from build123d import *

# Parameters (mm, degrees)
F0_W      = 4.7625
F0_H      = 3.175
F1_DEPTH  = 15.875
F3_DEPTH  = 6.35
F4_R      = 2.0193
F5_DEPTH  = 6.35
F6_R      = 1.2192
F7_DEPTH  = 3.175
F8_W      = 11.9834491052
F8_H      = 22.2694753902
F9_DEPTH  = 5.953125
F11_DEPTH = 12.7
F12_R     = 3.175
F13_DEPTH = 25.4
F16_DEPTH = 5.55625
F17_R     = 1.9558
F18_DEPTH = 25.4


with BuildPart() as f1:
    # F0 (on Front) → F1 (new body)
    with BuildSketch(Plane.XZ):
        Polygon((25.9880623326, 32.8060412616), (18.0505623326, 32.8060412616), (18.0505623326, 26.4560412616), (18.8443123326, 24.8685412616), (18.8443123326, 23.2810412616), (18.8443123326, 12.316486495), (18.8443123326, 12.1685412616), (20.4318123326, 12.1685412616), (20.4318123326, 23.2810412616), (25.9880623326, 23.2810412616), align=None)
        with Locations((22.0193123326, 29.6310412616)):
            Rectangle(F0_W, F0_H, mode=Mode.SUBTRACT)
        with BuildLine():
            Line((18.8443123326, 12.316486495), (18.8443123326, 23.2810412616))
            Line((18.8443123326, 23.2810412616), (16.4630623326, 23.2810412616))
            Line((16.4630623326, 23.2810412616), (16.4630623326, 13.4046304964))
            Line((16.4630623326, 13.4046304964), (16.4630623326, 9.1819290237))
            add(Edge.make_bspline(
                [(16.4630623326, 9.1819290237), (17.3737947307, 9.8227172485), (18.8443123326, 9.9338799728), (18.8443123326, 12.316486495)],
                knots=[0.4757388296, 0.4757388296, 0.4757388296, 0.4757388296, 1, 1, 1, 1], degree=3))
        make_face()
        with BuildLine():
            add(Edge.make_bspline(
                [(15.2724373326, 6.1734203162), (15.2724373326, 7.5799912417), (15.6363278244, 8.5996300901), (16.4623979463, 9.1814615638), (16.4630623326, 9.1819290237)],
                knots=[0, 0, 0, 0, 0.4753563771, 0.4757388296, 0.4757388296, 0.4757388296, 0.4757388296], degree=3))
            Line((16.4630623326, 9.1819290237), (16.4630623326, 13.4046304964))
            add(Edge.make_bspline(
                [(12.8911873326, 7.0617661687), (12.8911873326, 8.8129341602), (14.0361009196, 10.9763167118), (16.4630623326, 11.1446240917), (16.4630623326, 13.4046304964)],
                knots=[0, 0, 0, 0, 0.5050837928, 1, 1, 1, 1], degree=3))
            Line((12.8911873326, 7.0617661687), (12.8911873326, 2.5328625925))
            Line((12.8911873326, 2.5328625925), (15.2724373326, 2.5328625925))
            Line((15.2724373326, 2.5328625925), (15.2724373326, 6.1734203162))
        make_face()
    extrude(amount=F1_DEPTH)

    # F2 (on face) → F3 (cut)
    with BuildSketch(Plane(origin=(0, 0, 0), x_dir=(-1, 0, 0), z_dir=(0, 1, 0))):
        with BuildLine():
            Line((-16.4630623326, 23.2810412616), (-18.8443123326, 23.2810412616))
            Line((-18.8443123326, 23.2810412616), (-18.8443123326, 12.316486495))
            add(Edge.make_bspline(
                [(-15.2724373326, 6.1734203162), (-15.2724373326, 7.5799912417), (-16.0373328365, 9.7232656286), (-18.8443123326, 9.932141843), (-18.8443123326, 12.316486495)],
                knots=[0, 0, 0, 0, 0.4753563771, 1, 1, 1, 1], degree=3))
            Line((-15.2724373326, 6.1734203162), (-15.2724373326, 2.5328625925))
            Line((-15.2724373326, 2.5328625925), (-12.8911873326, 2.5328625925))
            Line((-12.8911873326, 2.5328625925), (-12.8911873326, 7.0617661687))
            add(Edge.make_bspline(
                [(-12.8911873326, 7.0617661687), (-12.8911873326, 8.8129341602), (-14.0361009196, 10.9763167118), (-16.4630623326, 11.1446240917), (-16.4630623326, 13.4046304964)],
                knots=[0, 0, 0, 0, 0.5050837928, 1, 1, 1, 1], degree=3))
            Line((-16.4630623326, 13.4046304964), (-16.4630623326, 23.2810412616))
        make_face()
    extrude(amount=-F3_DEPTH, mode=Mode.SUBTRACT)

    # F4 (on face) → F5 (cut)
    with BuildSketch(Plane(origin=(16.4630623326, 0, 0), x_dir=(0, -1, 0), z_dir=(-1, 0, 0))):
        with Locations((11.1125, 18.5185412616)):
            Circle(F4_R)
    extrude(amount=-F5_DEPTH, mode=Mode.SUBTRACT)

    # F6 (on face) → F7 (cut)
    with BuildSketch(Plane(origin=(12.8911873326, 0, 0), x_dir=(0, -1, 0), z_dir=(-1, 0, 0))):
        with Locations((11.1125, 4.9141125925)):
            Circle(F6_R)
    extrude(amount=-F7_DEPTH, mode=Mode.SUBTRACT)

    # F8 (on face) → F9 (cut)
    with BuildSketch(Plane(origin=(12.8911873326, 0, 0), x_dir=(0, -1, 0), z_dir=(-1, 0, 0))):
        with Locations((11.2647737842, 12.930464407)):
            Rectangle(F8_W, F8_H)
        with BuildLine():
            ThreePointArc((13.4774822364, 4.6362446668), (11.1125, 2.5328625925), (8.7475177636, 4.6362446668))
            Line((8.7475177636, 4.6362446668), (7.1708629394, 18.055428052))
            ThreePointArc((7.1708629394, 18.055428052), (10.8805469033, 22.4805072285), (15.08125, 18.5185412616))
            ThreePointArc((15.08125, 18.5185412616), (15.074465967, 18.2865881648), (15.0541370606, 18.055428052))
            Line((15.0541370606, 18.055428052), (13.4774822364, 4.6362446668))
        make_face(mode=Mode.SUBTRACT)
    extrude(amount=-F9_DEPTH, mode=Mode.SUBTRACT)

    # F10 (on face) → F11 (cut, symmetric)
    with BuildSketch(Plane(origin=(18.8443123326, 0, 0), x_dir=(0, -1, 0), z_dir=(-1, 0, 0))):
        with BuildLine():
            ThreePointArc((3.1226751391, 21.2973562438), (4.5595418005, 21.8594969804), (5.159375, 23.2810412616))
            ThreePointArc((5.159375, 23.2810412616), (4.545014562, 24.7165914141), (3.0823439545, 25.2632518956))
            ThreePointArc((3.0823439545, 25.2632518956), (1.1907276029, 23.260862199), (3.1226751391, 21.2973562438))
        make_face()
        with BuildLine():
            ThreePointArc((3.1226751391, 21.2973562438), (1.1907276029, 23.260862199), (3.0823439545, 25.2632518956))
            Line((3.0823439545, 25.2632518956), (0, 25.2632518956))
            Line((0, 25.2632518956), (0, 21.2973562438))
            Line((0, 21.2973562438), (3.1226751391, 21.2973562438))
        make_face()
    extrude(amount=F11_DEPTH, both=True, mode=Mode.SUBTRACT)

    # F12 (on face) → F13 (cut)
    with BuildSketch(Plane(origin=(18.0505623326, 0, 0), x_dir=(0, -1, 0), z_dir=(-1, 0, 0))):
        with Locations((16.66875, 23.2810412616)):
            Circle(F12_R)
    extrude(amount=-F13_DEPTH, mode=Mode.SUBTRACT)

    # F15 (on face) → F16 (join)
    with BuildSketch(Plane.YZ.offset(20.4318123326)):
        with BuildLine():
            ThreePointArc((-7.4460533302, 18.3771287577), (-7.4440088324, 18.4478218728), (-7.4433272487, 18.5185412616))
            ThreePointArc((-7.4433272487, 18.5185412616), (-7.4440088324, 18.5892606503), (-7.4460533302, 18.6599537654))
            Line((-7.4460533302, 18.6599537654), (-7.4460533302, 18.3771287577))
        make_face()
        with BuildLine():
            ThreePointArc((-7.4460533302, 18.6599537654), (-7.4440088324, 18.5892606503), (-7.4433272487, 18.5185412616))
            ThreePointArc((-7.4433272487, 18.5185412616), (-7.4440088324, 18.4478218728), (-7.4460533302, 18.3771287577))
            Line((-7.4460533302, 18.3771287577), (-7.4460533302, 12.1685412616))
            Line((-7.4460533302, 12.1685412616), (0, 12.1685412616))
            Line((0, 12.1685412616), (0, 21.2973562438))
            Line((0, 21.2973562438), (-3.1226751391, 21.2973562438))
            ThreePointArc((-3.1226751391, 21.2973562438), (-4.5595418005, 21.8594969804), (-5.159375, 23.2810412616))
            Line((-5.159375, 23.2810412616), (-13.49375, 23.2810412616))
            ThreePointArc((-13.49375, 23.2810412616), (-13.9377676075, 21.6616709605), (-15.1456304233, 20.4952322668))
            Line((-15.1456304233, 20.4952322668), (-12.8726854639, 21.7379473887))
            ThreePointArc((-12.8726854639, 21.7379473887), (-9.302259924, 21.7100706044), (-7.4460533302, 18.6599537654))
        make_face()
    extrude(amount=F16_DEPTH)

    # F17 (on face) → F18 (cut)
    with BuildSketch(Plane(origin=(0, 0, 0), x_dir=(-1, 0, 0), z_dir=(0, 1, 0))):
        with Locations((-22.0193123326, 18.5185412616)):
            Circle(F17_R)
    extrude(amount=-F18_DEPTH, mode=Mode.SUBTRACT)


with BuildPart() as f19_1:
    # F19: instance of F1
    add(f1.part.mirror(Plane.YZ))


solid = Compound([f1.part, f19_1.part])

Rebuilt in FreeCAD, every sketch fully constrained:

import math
import FreeCAD as App
import Part
import Sketcher

V = App.Vector
Q = App.Units.Quantity

doc = App.newDocument("Part")
body = doc.addObject("PartDesign::Body", "Body")

# Sketch on XZ plane
sketch1 = body.newObject("Sketcher::SketchObject", "Sketch")
sketch1.AttachmentSupport = (doc.getObject("XZ_Plane"), [""])
sketch1.MapMode = "FlatFace"
sketch1.addGeometry([
    Part.LineSegment(V(25.988062, 32.806041, 0), V(18.050562, 32.806041, 0)),  # 0
    Part.LineSegment(V(18.050562, 32.806041, 0), V(18.050562, 26.456041, 0)),  # 1
    Part.LineSegment(V(18.050562, 26.456041, 0), V(18.844312, 24.868541, 0)),  # 2
    Part.LineSegment(V(18.844312, 24.868541, 0), V(18.844312, 23.281041, 0)),  # 3
    Part.LineSegment(V(18.844312, 23.281041, 0), V(16.463062, 23.281041, 0)),  # 4
    Part.LineSegment(V(16.463062, 23.281041, 0), V(16.463062, 13.40463, 0)),  # 5
    Part.BSplineCurve([V(12.891187, 7.061766, 0), V(12.891187, 8.812934, 0), V(14.036101, 10.976317, 0), V(16.463062, 11.144624, 0), V(16.463062, 13.40463, 0)], [4, 1, 4], [0, 0.505083793, 1], False, 3, [1, 1, 1, 1, 1], False),  # 6
    Part.LineSegment(V(12.891187, 7.061766, 0), V(12.891187, 2.532863, 0)),  # 7
    Part.LineSegment(V(12.891187, 2.532863, 0), V(15.272437, 2.532863, 0)),  # 8
    Part.LineSegment(V(15.272437, 2.532863, 0), V(15.272437, 6.17342, 0)),  # 9
    Part.BSplineCurve([V(15.272437, 6.17342, 0), V(15.272437, 7.579991, 0), V(15.636328, 8.59963, 0), V(16.462398, 9.181462, 0), V(16.463062, 9.181929, 0)], [4, 1, 4], [0, 0.475356377, 0.47573883], False, 3, [1, 1, 1, 1, 1], False),  # 10
    Part.BSplineCurve([V(16.463062, 9.181929, 0), V(17.373795, 9.822717, 0), V(18.844312, 9.93388, 0), V(18.844312, 12.316486, 0)], [4, 4], [0.47573883, 1], False, 3, [1, 1, 1, 1], False),  # 11
    Part.LineSegment(V(18.844312, 12.316486, 0), V(18.844312, 12.168541, 0)),  # 12
    Part.LineSegment(V(18.844312, 12.168541, 0), V(20.431812, 12.168541, 0)),  # 13
    Part.LineSegment(V(20.431812, 12.168541, 0), V(20.431812, 23.281041, 0)),  # 14
    Part.LineSegment(V(20.431812, 23.281041, 0), V(25.988062, 23.281041, 0)),  # 15
    Part.LineSegment(V(25.988062, 23.281041, 0), V(25.988062, 32.806041, 0)),  # 16
    Part.LineSegment(V(24.400562, 28.043541, 0), V(19.638062, 28.043541, 0)),  # 17
    Part.LineSegment(V(19.638062, 28.043541, 0), V(19.638062, 31.218541, 0)),  # 18
    Part.LineSegment(V(19.638062, 31.218541, 0), V(24.400562, 31.218541, 0)),  # 19
    Part.LineSegment(V(24.400562, 31.218541, 0), V(24.400562, 28.043541, 0)),  # 20
], False)
sketch1.addConstraint([
    Sketcher.Constraint("Block", 6),
    Sketcher.Constraint("Block", 10),
    Sketcher.Constraint("Block", 11),
    Sketcher.Constraint("Coincident", 0, 2, 1, 1),
    Sketcher.Constraint("Coincident", 1, 2, 2, 1),
    Sketcher.Constraint("Coincident", 2, 2, 3, 1),
    Sketcher.Constraint("Coincident", 3, 2, 4, 1),
    Sketcher.Constraint("Coincident", 4, 2, 5, 1),
    Sketcher.Constraint("Coincident", 5, 2, 6, 2),
    Sketcher.Constraint("Coincident", 6, 1, 7, 1),
    Sketcher.Constraint("Coincident", 7, 2, 8, 1),
    Sketcher.Constraint("Coincident", 8, 2, 9, 1),
    Sketcher.Constraint("Coincident", 9, 2, 10, 1),
    Sketcher.Constraint("Coincident", 11, 2, 12, 1),
    Sketcher.Constraint("Coincident", 12, 2, 13, 1),
    Sketcher.Constraint("Coincident", 13, 2, 14, 1),
    Sketcher.Constraint("Coincident", 14, 2, 15, 1),
    Sketcher.Constraint("Coincident", 15, 2, 16, 1),
    Sketcher.Constraint("Coincident", 16, 2, 0, 1),
    Sketcher.Constraint("Coincident", 17, 2, 18, 1),
    Sketcher.Constraint("Coincident", 18, 2, 19, 1),
    Sketcher.Constraint("Coincident", 19, 2, 20, 1),
    Sketcher.Constraint("Coincident", 20, 2, 17, 1),
    Sketcher.Constraint("Horizontal", 0),
    Sketcher.Constraint("Vertical", 1),
    Sketcher.Constraint("Vertical", 3),
    Sketcher.Constraint("Horizontal", 4),
    Sketcher.Constraint("Vertical", 5),
    Sketcher.Constraint("Vertical", 7),
    Sketcher.Constraint("Horizontal", 8),
    Sketcher.Constraint("Vertical", 9),
    Sketcher.Constraint("Vertical", 12),
    Sketcher.Constraint("Horizontal", 13),
    Sketcher.Constraint("Vertical", 14),
    Sketcher.Constraint("Horizontal", 15),
    Sketcher.Constraint("Vertical", 16),
    Sketcher.Constraint("Horizontal", 17),
    Sketcher.Constraint("Vertical", 18),
    Sketcher.Constraint("Horizontal", 19),
    Sketcher.Constraint("Vertical", 20),
    Sketcher.Constraint("Horizontal", 4, 2, 14, 2),
    Sketcher.Constraint("Vertical", 3, 2, 12, 2),
    Sketcher.Constraint("Equal", 13, 3),
    Sketcher.Constraint("DistanceY", 1, 2, 1, 1, Q("0.25 in")),
    Sketcher.Constraint("DistanceX", 0, 2, 0, 1, Q("0.3125 in")),
    Sketcher.Constraint("DistanceX", 13, 1, 13, 2, Q("0.0625 in")),
    Sketcher.Constraint("DistanceX", 15, 1, 15, 2, Q("0.21875 in")),
    Sketcher.Constraint("DistanceX", 17, 2, 17, 1, Q("0.1875 in")),
    Sketcher.Constraint("DistanceY", 14, 1, 14, 2, Q("0.4375 in")),
    Sketcher.Constraint("DistanceY", 16, 1, 16, 2, Q("0.375 in")),
    Sketcher.Constraint("DistanceY", 18, 1, 18, 2, Q("0.125 in")),
    Sketcher.Constraint("DistanceY", 2, 2, 18, 2, Q("0.25 in")),
    Sketcher.Constraint("DistanceX", 18, 2, 16, 2, Q("0.25 in")),
    Sketcher.Constraint("DistanceY", 5, 2, 5, 1, Q("9.876411 mm")),
    Sketcher.Constraint("DistanceY", 7, 2, 7, 1, Q("4.528904 mm")),
])
pad1 = body.newObject("PartDesign::Pad", "Pad")
pad1.Profile = sketch1
pad1.Length = Q("0.625 in")

# Sketch on XZ plane
sketch2 = body.newObject("Sketcher::SketchObject", "Sketch001")
sketch2.AttachmentSupport = (doc.getObject("XZ_Plane"), [""])
sketch2.MapMode = "FlatFace"
sketch2.addGeometry([
    Part.LineSegment(V(16.463062, 23.281041, 0), V(18.844312, 23.281041, 0)),  # 0
    Part.LineSegment(V(18.844312, 23.281041, 0), V(18.844312, 12.316486, 0)),  # 1
    Part.BSplineCurve([V(15.272437, 6.17342, 0), V(15.272437, 7.579991, 0), V(16.037333, 9.723266, 0), V(18.844312, 9.932142, 0), V(18.844312, 12.316486, 0)], [4, 1, 4], [0, 0.475356377, 1], False, 3, [1, 1, 1, 1, 1], False),  # 2
    Part.LineSegment(V(15.272437, 6.17342, 0), V(15.272437, 2.532863, 0)),  # 3
    Part.LineSegment(V(15.272437, 2.532863, 0), V(12.891187, 2.532863, 0)),  # 4
    Part.LineSegment(V(12.891187, 2.532863, 0), V(12.891187, 7.061766, 0)),  # 5
    Part.BSplineCurve([V(12.891187, 7.061766, 0), V(12.891187, 8.812934, 0), V(14.036101, 10.976317, 0), V(16.463062, 11.144624, 0), V(16.463062, 13.40463, 0)], [4, 1, 4], [0, 0.505083793, 1], False, 3, [1, 1, 1, 1, 1], False),  # 6
    Part.LineSegment(V(16.463062, 13.40463, 0), V(16.463062, 23.281041, 0)),  # 7
], False)
sketch2.addConstraint([
    Sketcher.Constraint("Block", 2),
    Sketcher.Constraint("Block", 6),
    Sketcher.Constraint("Coincident", 0, 2, 1, 1),
    Sketcher.Constraint("Coincident", 1, 2, 2, 2),
    Sketcher.Constraint("Coincident", 2, 1, 3, 1),
    Sketcher.Constraint("Coincident", 3, 2, 4, 1),
    Sketcher.Constraint("Coincident", 4, 2, 5, 1),
    Sketcher.Constraint("Coincident", 5, 2, 6, 1),
    Sketcher.Constraint("Coincident", 6, 2, 7, 1),
    Sketcher.Constraint("Coincident", 7, 2, 0, 1),
    Sketcher.Constraint("Horizontal", 0),
    Sketcher.Constraint("Vertical", 1),
    Sketcher.Constraint("Vertical", 3),
    Sketcher.Constraint("Horizontal", 4),
    Sketcher.Constraint("Vertical", 5),
    Sketcher.Constraint("Vertical", 7),
    Sketcher.Constraint("DistanceY", 7, 1, 7, 2, Q("9.876411 mm")),
    Sketcher.Constraint("DistanceY", 3, 2, 3, 1, Q("3.640558 mm")),
])
pocket1 = body.newObject("PartDesign::Pocket", "Pocket")
pocket1.Profile = sketch2
pocket1.Length = Q("0.25 in")
pocket1.Reversed = True

# Sketch on YZ plane
sketch3 = body.newObject("Sketcher::SketchObject", "Sketch002")
sketch3.AttachmentSupport = (doc.getObject("YZ_Plane"), [""])
sketch3.MapMode = "FlatFace"
sketch3.AttachmentOffset = App.Placement(V(0, 0, 16.463062), App.Rotation())
sketch3.addGeometry(Part.Circle(V(-11.1, 18.5, 0), V(0, 0, 1), 2), False)
sketch3.addConstraint([
    Sketcher.Constraint("Diameter", 0, Q("0.159 in")),
    Sketcher.Constraint("DistanceX", 0, 3, -1, 1, Q("0.4375 in")),
    Sketcher.Constraint("DistanceY", -1, 1, 0, 3, Q("18.518541 mm")),
])
pocket2 = body.newObject("PartDesign::Pocket", "Pocket001")
pocket2.Profile = sketch3
pocket2.Length = Q("0.25 in")
pocket2.Reversed = True

# Sketch on YZ plane
sketch4 = body.newObject("Sketcher::SketchObject", "Sketch003")
sketch4.AttachmentSupport = (doc.getObject("YZ_Plane"), [""])
sketch4.MapMode = "FlatFace"
sketch4.AttachmentOffset = App.Placement(V(0, 0, 12.891187), App.Rotation())
sketch4.addGeometry(Part.Circle(V(-11.1, 4.9, 0), V(0, 0, 1), 1.2), False)
sketch4.addConstraint([
    Sketcher.Constraint("Diameter", 0, Q("0.096 in")),
    Sketcher.Constraint("DistanceX", 0, 3, -1, 1, Q("0.4375 in")),
    Sketcher.Constraint("DistanceY", -1, 1, 0, 3, Q("4.914113 mm")),
])
pocket3 = body.newObject("PartDesign::Pocket", "Pocket002")
pocket3.Profile = sketch4
pocket3.Length = Q("0.125 in")
pocket3.Reversed = True

# Sketch on YZ plane
sketch5 = body.newObject("Sketcher::SketchObject", "Sketch004")
sketch5.AttachmentSupport = (doc.getObject("YZ_Plane"), [""])
sketch5.MapMode = "FlatFace"
sketch5.AttachmentOffset = App.Placement(V(0, 0, 12.891187), App.Rotation())
sketch5.addGeometry([
    Part.LineSegment(V(-5.27, 24.07, 0), V(-5.27, 1.8, 0)),  # 0
    Part.LineSegment(V(-5.27, 1.8, 0), V(-17.26, 1.8, 0)),  # 1
    Part.LineSegment(V(-17.26, 1.8, 0), V(-17.26, 24.07, 0)),  # 2
    Part.LineSegment(V(-17.26, 24.07, 0), V(-5.27, 24.07, 0)),  # 3
    Part.LineSegment(V(-15.05, 18.06, 0), V(-13.48, 4.64, 0)),  # 4
    Part.ArcOfCircle(Part.Circle(V(-11.11, 4.91, 0), V(0, 0, 1), 2.38), math.radians(-173), math.radians(-7)),  # 5
    Part.LineSegment(V(-8.75, 4.64, 0), V(-7.17, 18.06, 0)),  # 6
    Part.ArcOfCircle(Part.Circle(V(-11.11, 18.52, 0), V(0, 0, 1), 3.97), math.radians(-7), math.radians(180)),  # 7
    Part.ArcOfCircle(Part.Circle(V(-11.11, 18.52, 0), V(0, 0, 1), 3.97), math.radians(180), math.radians(186.7)),  # 8
], False)
sketch5.addConstraint([
    Sketcher.Constraint("Coincident", 0, 2, 1, 1),
    Sketcher.Constraint("Coincident", 1, 2, 2, 1),
    Sketcher.Constraint("Coincident", 2, 2, 3, 1),
    Sketcher.Constraint("Coincident", 3, 2, 0, 1),
    Sketcher.Constraint("Tangent", 4, 2, 5, 1),
    Sketcher.Constraint("Tangent", 5, 2, 6, 1),
    Sketcher.Constraint("Tangent", 6, 2, 7, 1),
    Sketcher.Constraint("Tangent", 7, 2, 8, 1),
    Sketcher.Constraint("Tangent", 8, 2, 4, 1),
    Sketcher.Constraint("Vertical", 0),
    Sketcher.Constraint("Horizontal", 1),
    Sketcher.Constraint("Vertical", 2),
    Sketcher.Constraint("Horizontal", 3),
    Sketcher.Constraint("Equal", 7, 8),
    Sketcher.Constraint("Horizontal", 4, 2, 5, 2),
    Sketcher.Constraint("Horizontal", 8, 3, 7, 2),
    Sketcher.Constraint("Radius", 5, Q("0.09375 in")),
    Sketcher.Constraint("Radius", 7, Q("0.15625 in")),
    Sketcher.Constraint("DistanceX", 5, 3, -1, 1, Q("0.4375 in")),
    Sketcher.Constraint("DistanceX", 1, 2, 1, 1, Q("11.983449 mm")),
    Sketcher.Constraint("DistanceX", 1, 2, -1, 1, Q("17.256498 mm")),
    Sketcher.Constraint("Distance", 4, Q("13.511489 mm")),
    Sketcher.Constraint("DistanceY", 0, 2, 0, 1, Q("22.269475 mm")),
    Sketcher.Constraint("DistanceY", -1, 1, 7, 3, Q("18.518541 mm")),
    Sketcher.Constraint("DistanceY", 8, 3, 2, 2, Q("5.546661 mm")),
])
pocket4 = body.newObject("PartDesign::Pocket", "Pocket003")
pocket4.Profile = sketch5
pocket4.Length = Q("0.234375 in")
pocket4.Reversed = True

# Sketch on YZ plane
sketch6 = body.newObject("Sketcher::SketchObject", "Sketch005")
sketch6.AttachmentSupport = (doc.getObject("YZ_Plane"), [""])
sketch6.MapMode = "FlatFace"
sketch6.AttachmentOffset = App.Placement(V(0, 0, 18.844312), App.Rotation())
sketch6.addGeometry([
    Part.ArcOfCircle(Part.Circle(V(-3.2, 23.3, 0), V(0, 0, 1), 2), math.radians(180), math.radians(272)),  # 0
    Part.ArcOfCircle(Part.Circle(V(-3.2, 23.3, 0), V(0, 0, 1), 2), math.radians(87), math.radians(180)),  # 1
    Part.LineSegment(V(-3.1, 25.3, 0), V(0, 25.3, 0)),  # 2
    Part.LineSegment(V(0, 25.3, 0), V(0, 21.3, 0)),  # 3
    Part.LineSegment(V(0, 21.3, 0), V(-3.1, 21.3, 0)),  # 4
], False)
sketch6.addConstraint([
    Sketcher.Constraint("Tangent", 0, 1, 1, 2),
    Sketcher.Constraint("Coincident", 1, 1, 2, 1),
    Sketcher.Constraint("Coincident", 2, 2, 3, 1),
    Sketcher.Constraint("Coincident", 3, 2, 4, 1),
    Sketcher.Constraint("Coincident", 4, 2, 0, 2),
    Sketcher.Constraint("Horizontal", 2),
    Sketcher.Constraint("Vertical", 3),
    Sketcher.Constraint("Horizontal", 4),
    Sketcher.Constraint("Equal", 0, 1),
    Sketcher.Constraint("PointOnObject", 2, 2, -2),
    Sketcher.Constraint("Horizontal", 1, 3, 0, 1),
    Sketcher.Constraint("Radius", 0, Q("0.078125 in")),
    Sketcher.Constraint("DistanceX", 0, 3, -1, 1, Q("0.125 in")),
    Sketcher.Constraint("DistanceX", 0, 1, 4, 2, Q("2.0367 mm")),
    Sketcher.Constraint("DistanceX", 2, 1, 2, 2, Q("3.082344 mm")),
    Sketcher.Constraint("DistanceY", -1, 1, 0, 3, Q("23.281041 mm")),
])
pocket5 = body.newObject("PartDesign::Pocket", "Pocket004")
pocket5.Profile = sketch6
pocket5.Length = Q("1 in")
pocket5.Midplane = True

# Sketch on YZ plane
sketch7 = body.newObject("Sketcher::SketchObject", "Sketch006")
sketch7.AttachmentSupport = (doc.getObject("YZ_Plane"), [""])
sketch7.MapMode = "FlatFace"
sketch7.AttachmentOffset = App.Placement(V(0, 0, 18.050562), App.Rotation())
sketch7.addGeometry(Part.Circle(V(-16.7, 23.3, 0), V(0, 0, 1), 3.2), False)
sketch7.addConstraint([
    Sketcher.Constraint("Diameter", 0, Q("0.25 in")),
    Sketcher.Constraint("DistanceX", 0, 3, -1, 1, Q("0.65625 in")),
    Sketcher.Constraint("DistanceY", -1, 1, 0, 3, Q("23.281041 mm")),
])
pocket6 = body.newObject("PartDesign::Pocket", "Pocket005")
pocket6.Profile = sketch7
pocket6.Length = Q("1 in")
pocket6.Reversed = True

# Sketch on YZ plane
sketch8 = body.newObject("Sketcher::SketchObject", "Sketch007")
sketch8.AttachmentSupport = (doc.getObject("YZ_Plane"), [""])
sketch8.MapMode = "FlatFace"
sketch8.AttachmentOffset = App.Placement(V(0, 0, 20.431812), App.Rotation())
sketch8.addGeometry([
    Part.LineSegment(V(-7.4, 18.7, 0), V(-7.4, 12.2, 0)),  # 0
    Part.LineSegment(V(-7.4, 12.2, 0), V(0, 12.2, 0)),  # 1
    Part.LineSegment(V(0, 12.2, 0), V(0, 21.3, 0)),  # 2
    Part.LineSegment(V(0, 21.3, 0), V(-3.1, 21.3, 0)),  # 3
    Part.ArcOfCircle(Part.Circle(V(-3.2, 23.3, 0), V(0, 0, 1), 2), math.radians(180), math.radians(272)),  # 4
    Part.LineSegment(V(-5.2, 23.3, 0), V(-13.5, 23.3, 0)),  # 5
    Part.ArcOfCircle(Part.Circle(V(-16.7, 23.3, 0), V(0, 0, 1), 3.2), math.radians(-61), math.radians(0)),  # 6
    Part.LineSegment(V(-15.1, 20.5, 0), V(-12.9, 21.7, 0)),  # 7
    Part.ArcOfCircle(Part.Circle(V(-11.1, 18.5, 0), V(0, 0, 1), 3.7), math.radians(2), math.radians(119)),  # 8
], False)
sketch8.addConstraint([
    Sketcher.Constraint("Coincident", 0, 2, 1, 1),
    Sketcher.Constraint("Coincident", 1, 2, 2, 1),
    Sketcher.Constraint("Coincident", 2, 2, 3, 1),
    Sketcher.Constraint("Coincident", 3, 2, 4, 2),
    Sketcher.Constraint("Coincident", 4, 1, 5, 1),
    Sketcher.Constraint("Coincident", 5, 2, 6, 2),
    Sketcher.Constraint("Tangent", 6, 1, 7, 1),
    Sketcher.Constraint("Tangent", 7, 2, 8, 2),
    Sketcher.Constraint("Coincident", 8, 1, 0, 1),
    Sketcher.Constraint("Vertical", 0),
    Sketcher.Constraint("Horizontal", 1),
    Sketcher.Constraint("Vertical", 2),
    Sketcher.Constraint("Horizontal", 3),
    Sketcher.Constraint("Horizontal", 5),
    Sketcher.Constraint("PointOnObject", 1, 2, -2),
    Sketcher.Constraint("Horizontal", 4, 3, 6, 3),
    Sketcher.Constraint("Horizontal", 6, 3, 4, 1),
    Sketcher.Constraint("Radius", 4, Q("0.078125 in")),
    Sketcher.Constraint("Radius", 6, Q("0.125 in")),
    Sketcher.Constraint("DistanceX", 5, 2, 5, 1, Q("0.328125 in")),
    Sketcher.Constraint("DistanceY", 0, 2, 8, 3, Q("0.25 in")),
    Sketcher.Constraint("DistanceX", 4, 3, -1, 1, Q("0.125 in")),
    Sketcher.Constraint("DistanceX", 8, 3, -1, 1, Q("0.4375 in")),
    Sketcher.Constraint("DistanceY", 8, 3, 6, 3, Q("0.1875 in")),
    Sketcher.Constraint("Radius", 8, Q("3.669173 mm")),
    Sketcher.Constraint("DistanceX", 4, 1, 3, 2, Q("2.0367 mm")),
    Sketcher.Constraint("DistanceX", 1, 1, 1, 2, Q("7.446053 mm")),
    Sketcher.Constraint("DistanceY", -1, 1, 4, 3, Q("23.281041 mm")),
])
pad2 = body.newObject("PartDesign::Pad", "Pad001")
pad2.Profile = sketch8
pad2.Length = Q("0.21875 in")

# Sketch on XZ plane
sketch9 = body.newObject("Sketcher::SketchObject", "Sketch008")
sketch9.AttachmentSupport = (doc.getObject("XZ_Plane"), [""])
sketch9.MapMode = "FlatFace"
sketch9.addGeometry(Part.Circle(V(22, 18.5, 0), V(0, 0, 1), 2), False)
sketch9.addConstraint([
    Sketcher.Constraint("Diameter", 0, Q("0.154 in")),
    Sketcher.Constraint("DistanceY", -1, 1, 0, 3, Q("18.518541 mm")),
    Sketcher.Constraint("DistanceX", -1, 1, 0, 3, Q("22.019312 mm")),
])
pocket7 = body.newObject("PartDesign::Pocket", "Pocket006")
pocket7.Profile = sketch9
pocket7.Length = Q("1 in")
pocket7.Reversed = True
body2 = doc.addObject("PartDesign::Body", "Body001")
doc.recompute()

mirroring = doc.addObject("Part::Mirroring", "Mirroring")
mirroring.Source = body
mirroring.Base = V(0, 0, 0)
mirroring.Normal = V(1, 0, 0)
body2.BaseFeature = mirroring
doc.recompute()
mirroring.Visibility = False

doc.recompute()
